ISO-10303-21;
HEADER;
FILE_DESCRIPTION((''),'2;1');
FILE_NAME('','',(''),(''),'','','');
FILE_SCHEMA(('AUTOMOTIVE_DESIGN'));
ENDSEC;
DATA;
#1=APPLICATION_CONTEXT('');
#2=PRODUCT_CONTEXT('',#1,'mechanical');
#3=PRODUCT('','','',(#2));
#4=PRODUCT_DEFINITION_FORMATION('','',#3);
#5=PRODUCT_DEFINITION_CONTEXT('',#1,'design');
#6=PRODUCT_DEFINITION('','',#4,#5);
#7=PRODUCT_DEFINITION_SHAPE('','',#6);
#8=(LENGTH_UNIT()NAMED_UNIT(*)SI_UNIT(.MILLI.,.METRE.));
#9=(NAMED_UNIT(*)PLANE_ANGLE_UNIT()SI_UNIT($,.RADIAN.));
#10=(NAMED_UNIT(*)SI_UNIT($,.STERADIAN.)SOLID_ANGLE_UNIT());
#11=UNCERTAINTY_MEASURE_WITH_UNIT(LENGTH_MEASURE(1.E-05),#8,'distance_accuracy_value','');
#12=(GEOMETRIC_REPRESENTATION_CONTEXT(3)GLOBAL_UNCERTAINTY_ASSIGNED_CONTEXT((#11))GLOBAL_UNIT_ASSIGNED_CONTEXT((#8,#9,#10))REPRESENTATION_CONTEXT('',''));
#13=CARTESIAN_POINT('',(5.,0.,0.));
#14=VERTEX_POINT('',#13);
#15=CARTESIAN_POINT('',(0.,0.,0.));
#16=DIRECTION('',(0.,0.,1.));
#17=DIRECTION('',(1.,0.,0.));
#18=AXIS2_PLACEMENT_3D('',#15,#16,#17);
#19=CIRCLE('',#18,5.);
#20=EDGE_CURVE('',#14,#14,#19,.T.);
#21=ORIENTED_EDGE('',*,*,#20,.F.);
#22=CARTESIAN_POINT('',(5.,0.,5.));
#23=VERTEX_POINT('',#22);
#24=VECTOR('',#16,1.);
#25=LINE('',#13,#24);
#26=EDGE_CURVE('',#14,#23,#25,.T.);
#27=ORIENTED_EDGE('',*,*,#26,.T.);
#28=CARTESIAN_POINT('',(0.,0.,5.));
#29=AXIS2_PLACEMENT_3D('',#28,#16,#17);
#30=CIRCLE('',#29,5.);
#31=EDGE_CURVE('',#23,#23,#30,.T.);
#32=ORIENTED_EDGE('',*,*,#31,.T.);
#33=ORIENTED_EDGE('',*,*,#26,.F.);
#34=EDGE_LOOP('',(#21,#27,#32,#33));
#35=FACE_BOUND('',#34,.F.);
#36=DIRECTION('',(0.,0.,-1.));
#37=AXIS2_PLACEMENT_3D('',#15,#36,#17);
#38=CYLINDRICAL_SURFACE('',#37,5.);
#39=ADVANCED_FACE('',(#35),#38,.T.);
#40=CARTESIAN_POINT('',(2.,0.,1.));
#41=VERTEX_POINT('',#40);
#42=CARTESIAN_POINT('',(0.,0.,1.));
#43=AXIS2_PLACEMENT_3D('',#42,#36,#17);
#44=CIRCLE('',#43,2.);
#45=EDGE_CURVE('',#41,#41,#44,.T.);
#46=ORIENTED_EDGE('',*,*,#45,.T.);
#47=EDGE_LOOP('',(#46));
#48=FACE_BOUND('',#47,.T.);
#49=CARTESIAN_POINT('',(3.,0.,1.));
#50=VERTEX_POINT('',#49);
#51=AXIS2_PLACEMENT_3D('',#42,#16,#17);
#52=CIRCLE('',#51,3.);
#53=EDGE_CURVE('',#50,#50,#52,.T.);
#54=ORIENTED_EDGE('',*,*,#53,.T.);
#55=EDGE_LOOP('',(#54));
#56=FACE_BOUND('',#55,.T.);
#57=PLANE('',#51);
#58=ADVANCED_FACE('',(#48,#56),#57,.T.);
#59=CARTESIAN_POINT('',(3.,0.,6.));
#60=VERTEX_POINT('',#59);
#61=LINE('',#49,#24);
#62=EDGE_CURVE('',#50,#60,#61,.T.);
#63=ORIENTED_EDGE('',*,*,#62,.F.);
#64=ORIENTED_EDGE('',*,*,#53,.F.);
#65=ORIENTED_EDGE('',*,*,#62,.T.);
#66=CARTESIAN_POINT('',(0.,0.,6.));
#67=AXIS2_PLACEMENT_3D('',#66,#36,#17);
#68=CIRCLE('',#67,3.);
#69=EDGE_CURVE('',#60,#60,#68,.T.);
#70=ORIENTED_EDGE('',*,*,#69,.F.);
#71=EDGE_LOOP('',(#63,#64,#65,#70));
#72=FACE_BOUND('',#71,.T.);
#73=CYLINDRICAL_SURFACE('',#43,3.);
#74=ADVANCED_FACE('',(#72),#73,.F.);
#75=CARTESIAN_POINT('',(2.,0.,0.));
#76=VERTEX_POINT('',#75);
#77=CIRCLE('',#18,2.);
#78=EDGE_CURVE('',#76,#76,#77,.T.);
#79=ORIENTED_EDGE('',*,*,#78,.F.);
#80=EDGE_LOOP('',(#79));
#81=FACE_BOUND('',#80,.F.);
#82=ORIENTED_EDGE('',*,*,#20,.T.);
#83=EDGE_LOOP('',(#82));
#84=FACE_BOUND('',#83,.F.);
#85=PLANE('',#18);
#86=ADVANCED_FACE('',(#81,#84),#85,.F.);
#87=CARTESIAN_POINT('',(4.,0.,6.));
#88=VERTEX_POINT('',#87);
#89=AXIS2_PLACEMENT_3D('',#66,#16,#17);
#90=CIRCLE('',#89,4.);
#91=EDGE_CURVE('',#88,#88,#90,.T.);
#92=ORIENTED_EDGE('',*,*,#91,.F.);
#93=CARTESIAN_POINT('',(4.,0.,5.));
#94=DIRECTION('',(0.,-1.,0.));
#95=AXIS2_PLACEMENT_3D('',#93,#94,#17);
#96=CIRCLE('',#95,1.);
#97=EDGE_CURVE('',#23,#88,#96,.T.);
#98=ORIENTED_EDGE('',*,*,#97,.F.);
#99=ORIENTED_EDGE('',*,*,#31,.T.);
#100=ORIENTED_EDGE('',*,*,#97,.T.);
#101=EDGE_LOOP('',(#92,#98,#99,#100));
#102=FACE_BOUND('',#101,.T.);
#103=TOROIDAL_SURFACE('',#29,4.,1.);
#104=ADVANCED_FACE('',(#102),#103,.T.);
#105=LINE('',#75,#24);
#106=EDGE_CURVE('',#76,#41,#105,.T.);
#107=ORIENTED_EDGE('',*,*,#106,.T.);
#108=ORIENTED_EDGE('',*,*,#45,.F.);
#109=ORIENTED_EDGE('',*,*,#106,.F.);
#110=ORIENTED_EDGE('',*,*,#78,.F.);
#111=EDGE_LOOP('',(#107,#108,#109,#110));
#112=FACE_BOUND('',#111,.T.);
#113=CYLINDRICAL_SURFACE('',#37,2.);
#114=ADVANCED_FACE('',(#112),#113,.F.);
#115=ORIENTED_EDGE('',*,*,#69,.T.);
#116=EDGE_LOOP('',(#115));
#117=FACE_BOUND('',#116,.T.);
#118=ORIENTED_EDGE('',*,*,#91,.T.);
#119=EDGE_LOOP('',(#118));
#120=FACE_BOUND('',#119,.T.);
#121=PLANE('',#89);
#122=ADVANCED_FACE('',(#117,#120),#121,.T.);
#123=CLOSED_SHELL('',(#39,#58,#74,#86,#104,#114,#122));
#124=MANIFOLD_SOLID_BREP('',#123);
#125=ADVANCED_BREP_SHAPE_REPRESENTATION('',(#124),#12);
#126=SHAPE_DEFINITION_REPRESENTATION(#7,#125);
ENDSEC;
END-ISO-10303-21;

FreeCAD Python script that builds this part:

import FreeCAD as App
import Part
import Sketcher
from FreeCAD import Vector


def edges_at(feature, points):
    """Names of the edges that pass closest to the given points."""
    edges = feature.Shape.Edges
    near = lambda p: min(range(len(edges)), key=lambda i: edges[i].distToShape(Part.Vertex(*p))[0])
    return sorted({f"Edge{near(p) + 1}" for p in points})

doc = App.newDocument("Part")
params = doc.addObject("Spreadsheet::Sheet", "Params")
for row, (alias, value) in enumerate([
    ("sketch1_diameter", "4 mm"),
    ("pad1_length", "10 mm"),
    ("sketch2_diameter", "6 mm"),
    ("pad2_length", "10 mm"),
    ("sketch3_diameter", "10 mm"),
    ("pad3_length", "6 mm"),
    ("fillet_radius", "1 mm"),
], start=1):
    params.set(f"A{row}", alias)
    params.set(f"B{row}", "=" + value)
    params.setAlias(f"B{row}", alias)

body = doc.addObject("PartDesign::Body", "Body")

# Sketch on XY plane
sketch1 = body.newObject("Sketcher::SketchObject", "Sketch")
sketch1.AttachmentSupport = (doc.getObject("XY_Plane"), [""])
sketch1.MapMode = "FlatFace"
sketch1.addGeometry(Part.Circle(Vector(0, 0, 0), Vector(0, 0, 1), 2), False)
sketch1.addConstraint([
    Sketcher.Constraint("Coincident", 0, 3, -1, 1),
    Sketcher.Constraint("Diameter", 0, 4.0),
])
sketch1.setExpression("Constraints[1]", "Params.sketch1_diameter")
pad1 = body.newObject("PartDesign::Pad", "Pad")
pad1.Profile = sketch1
pad1.setExpression("Length", "Params.pad1_length")
body2 = doc.addObject("PartDesign::Body", "Body001")

# Sketch on XY plane
sketch2 = body2.newObject("Sketcher::SketchObject", "Sketch001")
sketch2.AttachmentSupport = (doc.getObject("XY_Plane001"), [""])
sketch2.MapMode = "FlatFace"
sketch2.AttachmentOffset = App.Placement(Vector(0, 0, 1), App.Rotation())
sketch2.addGeometry(Part.Circle(Vector(0, 0, 0), Vector(0, 0, 1), 3), False)
sketch2.addConstraint([
    Sketcher.Constraint("Coincident", 0, 3, -1, 1),
    Sketcher.Constraint("Diameter", 0, 6.0),
])
sketch2.setExpression("Constraints[1]", "Params.sketch2_diameter")
pad2 = body2.newObject("PartDesign::Pad", "Pad001")
pad2.Profile = sketch2
pad2.setExpression("Length", "Params.pad2_length")
doc.recompute()

boolean = body2.newObject("PartDesign::Boolean", "Boolean")
boolean.Type = "Fuse"
boolean.addObjects([body])
body3 = doc.addObject("PartDesign::Body", "Body002")

# Sketch on XY plane
sketch3 = body3.newObject("Sketcher::SketchObject", "Sketch002")
sketch3.AttachmentSupport = (doc.getObject("XY_Plane002"), [""])
sketch3.MapMode = "FlatFace"
sketch3.addGeometry(Part.Circle(Vector(0, 0, 0), Vector(0, 0, 1), 5), False)
sketch3.addConstraint([
    Sketcher.Constraint("Coincident", 0, 3, -1, 1),
    Sketcher.Constraint("Diameter", 0, 10.0),
])
sketch3.setExpression("Constraints[1]", "Params.sketch3_diameter")
pad3 = body3.newObject("PartDesign::Pad", "Pad002")
pad3.Profile = sketch3
pad3.setExpression("Length", "Params.pad3_length")
doc.recompute()

boolean2 = body3.newObject("PartDesign::Boolean", "Boolean001")
boolean2.Type = "Cut"
boolean2.addObjects([body2])
doc.recompute()

fillet = body3.newObject("PartDesign::Fillet", "Fillet")
fillet.Base = (boolean2, edges_at(boolean2, [(-5, 0, 6)]))
fillet.setExpression("Radius", "Params.fillet_radius")

doc.recompute()
